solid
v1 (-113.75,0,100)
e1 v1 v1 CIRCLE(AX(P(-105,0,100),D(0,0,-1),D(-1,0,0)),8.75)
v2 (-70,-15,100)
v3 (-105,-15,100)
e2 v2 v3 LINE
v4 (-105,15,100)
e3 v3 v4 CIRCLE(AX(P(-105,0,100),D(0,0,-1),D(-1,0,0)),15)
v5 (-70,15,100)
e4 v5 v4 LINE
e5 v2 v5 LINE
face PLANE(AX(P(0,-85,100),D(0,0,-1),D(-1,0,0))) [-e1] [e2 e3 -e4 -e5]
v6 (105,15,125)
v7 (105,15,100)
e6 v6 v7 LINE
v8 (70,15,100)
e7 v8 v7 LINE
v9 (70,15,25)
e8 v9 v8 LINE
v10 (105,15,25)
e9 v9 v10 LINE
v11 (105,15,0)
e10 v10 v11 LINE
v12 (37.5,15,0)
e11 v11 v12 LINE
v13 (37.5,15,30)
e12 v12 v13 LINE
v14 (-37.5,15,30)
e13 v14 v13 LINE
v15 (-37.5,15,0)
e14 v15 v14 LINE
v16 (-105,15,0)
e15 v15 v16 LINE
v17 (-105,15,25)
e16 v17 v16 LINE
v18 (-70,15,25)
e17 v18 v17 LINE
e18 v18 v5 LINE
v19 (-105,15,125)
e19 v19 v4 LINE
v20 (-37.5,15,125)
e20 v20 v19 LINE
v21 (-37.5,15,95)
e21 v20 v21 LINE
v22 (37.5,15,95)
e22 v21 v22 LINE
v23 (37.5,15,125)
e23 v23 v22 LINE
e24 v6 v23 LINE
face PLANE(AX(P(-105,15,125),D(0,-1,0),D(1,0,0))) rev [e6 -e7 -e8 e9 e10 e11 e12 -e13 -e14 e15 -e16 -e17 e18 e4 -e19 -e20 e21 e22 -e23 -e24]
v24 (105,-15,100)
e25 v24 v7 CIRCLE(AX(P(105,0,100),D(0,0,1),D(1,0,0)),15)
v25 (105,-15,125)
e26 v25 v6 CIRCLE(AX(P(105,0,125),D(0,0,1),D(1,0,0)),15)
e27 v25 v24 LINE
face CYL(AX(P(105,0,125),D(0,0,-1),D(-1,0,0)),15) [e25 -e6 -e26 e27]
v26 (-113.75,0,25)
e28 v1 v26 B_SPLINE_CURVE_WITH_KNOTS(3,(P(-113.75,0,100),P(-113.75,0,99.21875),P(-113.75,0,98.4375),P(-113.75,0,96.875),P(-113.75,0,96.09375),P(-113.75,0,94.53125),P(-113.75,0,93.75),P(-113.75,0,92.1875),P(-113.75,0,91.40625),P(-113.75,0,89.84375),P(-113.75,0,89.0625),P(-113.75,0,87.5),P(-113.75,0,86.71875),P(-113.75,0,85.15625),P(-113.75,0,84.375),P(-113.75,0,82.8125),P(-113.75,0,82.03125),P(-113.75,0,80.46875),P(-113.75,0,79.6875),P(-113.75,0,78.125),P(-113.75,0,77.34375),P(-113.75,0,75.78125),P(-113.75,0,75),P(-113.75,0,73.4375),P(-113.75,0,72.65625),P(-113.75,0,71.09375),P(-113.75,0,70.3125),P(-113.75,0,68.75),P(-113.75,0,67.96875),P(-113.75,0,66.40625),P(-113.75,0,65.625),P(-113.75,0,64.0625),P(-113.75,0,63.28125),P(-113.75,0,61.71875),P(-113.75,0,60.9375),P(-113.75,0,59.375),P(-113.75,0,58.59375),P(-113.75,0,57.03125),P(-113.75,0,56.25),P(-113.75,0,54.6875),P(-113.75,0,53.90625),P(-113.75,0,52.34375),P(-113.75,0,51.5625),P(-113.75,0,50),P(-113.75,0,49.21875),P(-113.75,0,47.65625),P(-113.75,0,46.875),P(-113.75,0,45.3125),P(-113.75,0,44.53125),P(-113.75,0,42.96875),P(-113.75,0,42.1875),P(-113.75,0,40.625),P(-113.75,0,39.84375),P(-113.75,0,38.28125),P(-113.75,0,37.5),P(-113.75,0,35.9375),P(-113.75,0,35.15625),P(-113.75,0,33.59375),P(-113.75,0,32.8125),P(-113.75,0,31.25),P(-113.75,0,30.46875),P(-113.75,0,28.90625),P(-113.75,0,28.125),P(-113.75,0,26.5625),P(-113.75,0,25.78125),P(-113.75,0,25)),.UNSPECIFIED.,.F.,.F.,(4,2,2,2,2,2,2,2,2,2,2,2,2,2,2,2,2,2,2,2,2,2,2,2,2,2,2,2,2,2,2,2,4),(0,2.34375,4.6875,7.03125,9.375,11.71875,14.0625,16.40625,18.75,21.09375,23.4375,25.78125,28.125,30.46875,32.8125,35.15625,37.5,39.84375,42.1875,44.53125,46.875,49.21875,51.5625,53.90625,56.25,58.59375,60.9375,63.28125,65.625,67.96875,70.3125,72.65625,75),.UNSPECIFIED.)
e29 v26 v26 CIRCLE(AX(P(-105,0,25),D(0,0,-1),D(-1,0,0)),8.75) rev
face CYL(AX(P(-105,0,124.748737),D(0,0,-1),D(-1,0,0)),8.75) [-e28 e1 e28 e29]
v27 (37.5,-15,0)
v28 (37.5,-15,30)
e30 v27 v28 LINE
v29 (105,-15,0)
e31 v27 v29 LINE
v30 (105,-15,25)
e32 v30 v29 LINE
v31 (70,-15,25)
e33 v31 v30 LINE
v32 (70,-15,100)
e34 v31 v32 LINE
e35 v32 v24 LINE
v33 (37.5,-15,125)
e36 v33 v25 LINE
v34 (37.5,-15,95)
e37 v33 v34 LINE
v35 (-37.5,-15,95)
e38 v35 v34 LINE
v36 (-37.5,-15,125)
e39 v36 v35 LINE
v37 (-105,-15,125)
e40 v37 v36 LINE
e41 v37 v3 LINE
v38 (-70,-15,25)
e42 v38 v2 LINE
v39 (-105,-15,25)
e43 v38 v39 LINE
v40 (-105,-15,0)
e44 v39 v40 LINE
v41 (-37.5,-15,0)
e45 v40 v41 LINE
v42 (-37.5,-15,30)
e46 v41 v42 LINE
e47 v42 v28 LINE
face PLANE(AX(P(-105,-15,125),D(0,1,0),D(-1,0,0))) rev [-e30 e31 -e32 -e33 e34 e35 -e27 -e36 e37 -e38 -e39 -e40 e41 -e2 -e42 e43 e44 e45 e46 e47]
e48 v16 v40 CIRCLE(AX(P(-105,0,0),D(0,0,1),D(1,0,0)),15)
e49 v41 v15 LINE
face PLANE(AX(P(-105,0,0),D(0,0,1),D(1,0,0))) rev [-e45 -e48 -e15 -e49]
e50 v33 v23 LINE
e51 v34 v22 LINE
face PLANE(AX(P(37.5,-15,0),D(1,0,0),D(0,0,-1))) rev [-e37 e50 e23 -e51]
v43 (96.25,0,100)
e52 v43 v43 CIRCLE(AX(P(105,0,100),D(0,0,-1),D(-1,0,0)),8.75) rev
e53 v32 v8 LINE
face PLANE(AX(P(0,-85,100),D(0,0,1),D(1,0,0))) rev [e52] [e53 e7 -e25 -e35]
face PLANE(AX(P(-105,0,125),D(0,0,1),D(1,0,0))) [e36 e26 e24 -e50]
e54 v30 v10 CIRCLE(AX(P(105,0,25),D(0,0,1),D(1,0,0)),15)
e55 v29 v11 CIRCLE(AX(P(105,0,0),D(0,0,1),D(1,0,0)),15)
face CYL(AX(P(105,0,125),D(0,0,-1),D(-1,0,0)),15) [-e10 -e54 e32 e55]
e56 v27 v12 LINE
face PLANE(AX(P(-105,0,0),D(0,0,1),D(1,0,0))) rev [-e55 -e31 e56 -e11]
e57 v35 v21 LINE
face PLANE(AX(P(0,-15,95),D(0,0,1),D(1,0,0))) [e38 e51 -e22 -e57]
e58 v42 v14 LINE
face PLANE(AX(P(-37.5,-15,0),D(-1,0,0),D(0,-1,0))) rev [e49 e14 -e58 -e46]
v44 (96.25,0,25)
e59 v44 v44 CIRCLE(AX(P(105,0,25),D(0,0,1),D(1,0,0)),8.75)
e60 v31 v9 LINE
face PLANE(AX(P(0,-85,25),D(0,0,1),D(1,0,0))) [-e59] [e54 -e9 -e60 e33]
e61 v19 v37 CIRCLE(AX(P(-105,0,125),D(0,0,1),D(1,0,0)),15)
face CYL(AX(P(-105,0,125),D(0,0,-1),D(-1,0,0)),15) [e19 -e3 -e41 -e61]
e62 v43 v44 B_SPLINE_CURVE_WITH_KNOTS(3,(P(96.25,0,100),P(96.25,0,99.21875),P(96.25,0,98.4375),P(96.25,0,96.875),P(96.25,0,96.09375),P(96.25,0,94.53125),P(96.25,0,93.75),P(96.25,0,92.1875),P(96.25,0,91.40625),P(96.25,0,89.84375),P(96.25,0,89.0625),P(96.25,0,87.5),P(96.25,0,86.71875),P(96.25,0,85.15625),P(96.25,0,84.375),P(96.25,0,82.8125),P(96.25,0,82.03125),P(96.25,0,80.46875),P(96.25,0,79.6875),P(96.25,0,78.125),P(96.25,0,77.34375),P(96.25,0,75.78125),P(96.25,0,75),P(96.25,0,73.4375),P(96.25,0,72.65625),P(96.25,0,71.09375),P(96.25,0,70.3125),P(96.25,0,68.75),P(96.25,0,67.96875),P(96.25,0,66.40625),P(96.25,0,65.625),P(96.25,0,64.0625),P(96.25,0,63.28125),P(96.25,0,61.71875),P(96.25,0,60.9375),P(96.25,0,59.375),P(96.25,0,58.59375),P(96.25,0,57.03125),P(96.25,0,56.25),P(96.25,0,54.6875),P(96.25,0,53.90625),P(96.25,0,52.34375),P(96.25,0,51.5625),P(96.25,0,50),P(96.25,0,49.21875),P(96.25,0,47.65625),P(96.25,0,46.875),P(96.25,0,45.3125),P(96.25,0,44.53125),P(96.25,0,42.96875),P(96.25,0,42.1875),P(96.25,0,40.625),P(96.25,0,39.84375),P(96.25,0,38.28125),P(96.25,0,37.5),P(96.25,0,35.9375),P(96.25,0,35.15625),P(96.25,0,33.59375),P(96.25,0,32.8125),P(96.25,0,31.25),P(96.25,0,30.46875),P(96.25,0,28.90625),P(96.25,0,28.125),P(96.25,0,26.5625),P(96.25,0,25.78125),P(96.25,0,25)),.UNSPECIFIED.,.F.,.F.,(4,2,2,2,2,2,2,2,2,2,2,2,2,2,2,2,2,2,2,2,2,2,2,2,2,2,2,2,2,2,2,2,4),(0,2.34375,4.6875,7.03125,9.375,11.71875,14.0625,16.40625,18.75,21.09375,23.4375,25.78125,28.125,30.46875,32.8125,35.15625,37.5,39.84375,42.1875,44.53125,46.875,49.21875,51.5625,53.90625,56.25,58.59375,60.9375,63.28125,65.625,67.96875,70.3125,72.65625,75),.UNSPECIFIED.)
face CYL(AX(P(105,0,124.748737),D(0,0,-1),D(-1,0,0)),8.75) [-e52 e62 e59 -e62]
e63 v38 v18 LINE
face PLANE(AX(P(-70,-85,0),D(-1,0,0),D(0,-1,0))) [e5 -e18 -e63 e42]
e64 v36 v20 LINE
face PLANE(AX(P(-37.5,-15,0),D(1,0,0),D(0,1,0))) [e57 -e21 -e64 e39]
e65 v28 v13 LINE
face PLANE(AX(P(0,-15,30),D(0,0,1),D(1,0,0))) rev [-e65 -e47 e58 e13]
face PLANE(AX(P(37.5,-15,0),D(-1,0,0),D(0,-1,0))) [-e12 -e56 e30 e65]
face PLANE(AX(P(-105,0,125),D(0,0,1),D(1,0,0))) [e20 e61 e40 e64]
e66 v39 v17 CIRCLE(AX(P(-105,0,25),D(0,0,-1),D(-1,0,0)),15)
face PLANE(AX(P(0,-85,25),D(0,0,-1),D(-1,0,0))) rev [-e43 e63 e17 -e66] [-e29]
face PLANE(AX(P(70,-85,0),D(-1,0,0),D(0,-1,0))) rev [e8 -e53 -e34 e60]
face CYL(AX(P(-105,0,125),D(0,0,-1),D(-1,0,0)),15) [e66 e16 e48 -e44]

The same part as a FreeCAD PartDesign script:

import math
import FreeCAD as App
import Part
import Sketcher
from FreeCAD import Vector

doc = App.newDocument("Part")
body = doc.addObject("PartDesign::Body", "Body")

# Sketch on XY plane
sketch1 = body.newObject("Sketcher::SketchObject", "Sketch")
sketch1.AttachmentSupport = (doc.getObject("XY_Plane"), [""])
sketch1.MapMode = "FlatFace"
sketch1.addGeometry([
    Part.LineSegment(Vector(105, 15, 0), Vector(-105, 15, 0)),
    Part.ArcOfCircle(Part.Circle(Vector(-105, 0, 0), Vector(0, 0, 1), 15), math.radians(90), math.radians(270)),
    Part.LineSegment(Vector(-105, -15, 0), Vector(105, -15, 0)),
    Part.ArcOfCircle(Part.Circle(Vector(105, 0, 0), Vector(0, 0, 1), 15), math.radians(-90), math.radians(90)),
], False)
sketch1.addConstraint([
    Sketcher.Constraint("Tangent", 0, 2, 1, 1),
    Sketcher.Constraint("Tangent", 1, 2, 2, 1),
    Sketcher.Constraint("Tangent", 2, 2, 3, 1),
    Sketcher.Constraint("Tangent", 3, 2, 0, 1),
    Sketcher.Constraint("Horizontal", 0),
    Sketcher.Constraint("Horizontal", 2),
    Sketcher.Constraint("Symmetric", 1, 3, 3, 3, -1, 1),
    Sketcher.Constraint("Radius", 1, 15.0),
    Sketcher.Constraint("DistanceX", 0, 2, 0, 1, 210.0),
])
pad1 = body.newObject("PartDesign::Pad", "Pad")
pad1.Profile = sketch1
pad1.Length = 125

# Sketch on XZ plane
sketch2 = body.newObject("Sketcher::SketchObject", "Sketch001")
sketch2.AttachmentSupport = (doc.getObject("XZ_Plane"), [""])
sketch2.MapMode = "FlatFace"
sketch2.AttachmentOffset = App.Placement(Vector(0, 0, -15), App.Rotation())
sketch2.addGeometry([
    Part.LineSegment(Vector(-70, 100, 0), Vector(-70, 25, 0)),  # 0
    Part.LineSegment(Vector(-70, 25, 0), Vector(-120, 25, 0)),  # 1
    Part.LineSegment(Vector(-120, 25, 0), Vector(-120, 100, 0)),  # 2
    Part.LineSegment(Vector(-120, 100, 0), Vector(-70, 100, 0)),  # 3
    Part.LineSegment(Vector(120, 100, 0), Vector(120, 25, 0)),  # 4
    Part.LineSegment(Vector(120, 25, 0), Vector(70, 25, 0)),  # 5
    Part.LineSegment(Vector(70, 25, 0), Vector(70, 100, 0)),  # 6
    Part.LineSegment(Vector(70, 100, 0), Vector(120, 100, 0)),  # 7
], False)
sketch2.addConstraint([
    Sketcher.Constraint("Coincident", 0, 2, 1, 1),
    Sketcher.Constraint("Coincident", 1, 2, 2, 1),
    Sketcher.Constraint("Coincident", 2, 2, 3, 1),
    Sketcher.Constraint("Coincident", 3, 2, 0, 1),
    Sketcher.Constraint("Coincident", 4, 2, 5, 1),
    Sketcher.Constraint("Coincident", 5, 2, 6, 1),
    Sketcher.Constraint("Coincident", 6, 2, 7, 1),
    Sketcher.Constraint("Coincident", 7, 2, 4, 1),
    Sketcher.Constraint("Vertical", 0),
    Sketcher.Constraint("Horizontal", 1),
    Sketcher.Constraint("Vertical", 2),
    Sketcher.Constraint("Horizontal", 3),
    Sketcher.Constraint("Vertical", 4),
    Sketcher.Constraint("Horizontal", 5),
    Sketcher.Constraint("Vertical", 6),
    Sketcher.Constraint("Horizontal", 7),
    Sketcher.Constraint("Symmetric", 1, 2, 4, 2, -2),
    Sketcher.Constraint("Symmetric", 3, 2, 6, 2, -2),
    Sketcher.Constraint("DistanceX", 1, 2, 1, 1, 50.0),
    Sketcher.Constraint("DistanceY", 0, 2, 0, 1, 75.0),
    Sketcher.Constraint("DistanceX", 0, 2, -1, 1, 70.0),
    Sketcher.Constraint("DistanceY", -1, 1, 0, 2, 25.0),
])
pocket1 = body.newObject("PartDesign::Pocket", "Pocket")
pocket1.Profile = sketch2
pocket1.Length = 100
pocket1.Reversed = True

# Sketch on XY plane
sketch3 = body.newObject("Sketcher::SketchObject", "Sketch002")
sketch3.AttachmentSupport = (doc.getObject("XY_Plane"), [""])
sketch3.MapMode = "FlatFace"
sketch3.AttachmentOffset = App.Placement(Vector(0, 0, 25), App.Rotation())
sketch3.addGeometry([
    Part.Circle(Vector(-105, 0, 0), Vector(0, 0, 1), 9),
    Part.Circle(Vector(105, 0, 0), Vector(0, 0, 1), 9),
], False)
sketch3.addConstraint([
    Sketcher.Constraint("Equal", 0, 1),
    Sketcher.Constraint("Symmetric", 0, 3, 1, 3, -1, 1),
    Sketcher.Constraint("PointOnObject", 0, 3, -1),
    Sketcher.Constraint("Diameter", 0, 17.5),
    Sketcher.Constraint("DistanceX", 0, 3, -1, 1, 105.0),
])
pad2 = body.newObject("PartDesign::Pad", "Pad001")
pad2.Profile = sketch3
pad2.Length = 75

# Sketch on XZ plane
sketch4 = body.newObject("Sketcher::SketchObject", "Sketch003")
sketch4.AttachmentSupport = (doc.getObject("XZ_Plane"), [""])
sketch4.MapMode = "FlatFace"
sketch4.AttachmentOffset = App.Placement(Vector(0, 0, -15), App.Rotation())
sketch4.addGeometry([
    Part.LineSegment(Vector(-38, 0, 0), Vector(-38, 30, 0)),  # 0
    Part.LineSegment(Vector(-38, 30, 0), Vector(38, 30, 0)),  # 1
    Part.LineSegment(Vector(38, 30, 0), Vector(38, 0, 0)),  # 2
    Part.LineSegment(Vector(38, 0, 0), Vector(-38, 0, 0)),  # 3
    Part.LineSegment(Vector(-38, 95, 0), Vector(-38, 125, 0)),  # 4
    Part.LineSegment(Vector(-38, 125, 0), Vector(38, 125, 0)),  # 5
    Part.LineSegment(Vector(38, 125, 0), Vector(38, 95, 0)),  # 6
    Part.LineSegment(Vector(38, 95, 0), Vector(-38, 95, 0)),  # 7
], False)
sketch4.addConstraint([
    Sketcher.Constraint("Coincident", 0, 2, 1, 1),
    Sketcher.Constraint("Coincident", 1, 2, 2, 1),
    Sketcher.Constraint("Coincident", 2, 2, 3, 1),
    Sketcher.Constraint("Coincident", 3, 2, 0, 1),
    Sketcher.Constraint("Coincident", 4, 2, 5, 1),
    Sketcher.Constraint("Coincident", 5, 2, 6, 1),
    Sketcher.Constraint("Coincident", 6, 2, 7, 1),
    Sketcher.Constraint("Coincident", 7, 2, 4, 1),
    Sketcher.Constraint("Vertical", 0),
    Sketcher.Constraint("Horizontal", 1),
    Sketcher.Constraint("Vertical", 2),
    Sketcher.Constraint("Horizontal", 3),
    Sketcher.Constraint("Vertical", 4),
    Sketcher.Constraint("Horizontal", 5),
    Sketcher.Constraint("Vertical", 6),
    Sketcher.Constraint("Horizontal", 7),
    Sketcher.Constraint("Symmetric", 2, 2, 3, 2, -1, 1),
    Sketcher.Constraint("Vertical", 3, 2, 4, 2),
    Sketcher.Constraint("Vertical", 2, 2, 5, 2),
    Sketcher.Constraint("Equal", 2, 4),
    Sketcher.Constraint("DistanceX", 1, 1, 1, 2, 75.0),
    Sketcher.Constraint("DistanceY", 0, 1, 0, 2, 30.0),
    Sketcher.Constraint("DistanceY", -1, 1, 4, 2, 125.0),
])
pocket2 = body.newObject("PartDesign::Pocket", "Pocket001")
pocket2.Profile = sketch4
pocket2.Type = "ThroughAll"
pocket2.Reversed = True

doc.recompute()
